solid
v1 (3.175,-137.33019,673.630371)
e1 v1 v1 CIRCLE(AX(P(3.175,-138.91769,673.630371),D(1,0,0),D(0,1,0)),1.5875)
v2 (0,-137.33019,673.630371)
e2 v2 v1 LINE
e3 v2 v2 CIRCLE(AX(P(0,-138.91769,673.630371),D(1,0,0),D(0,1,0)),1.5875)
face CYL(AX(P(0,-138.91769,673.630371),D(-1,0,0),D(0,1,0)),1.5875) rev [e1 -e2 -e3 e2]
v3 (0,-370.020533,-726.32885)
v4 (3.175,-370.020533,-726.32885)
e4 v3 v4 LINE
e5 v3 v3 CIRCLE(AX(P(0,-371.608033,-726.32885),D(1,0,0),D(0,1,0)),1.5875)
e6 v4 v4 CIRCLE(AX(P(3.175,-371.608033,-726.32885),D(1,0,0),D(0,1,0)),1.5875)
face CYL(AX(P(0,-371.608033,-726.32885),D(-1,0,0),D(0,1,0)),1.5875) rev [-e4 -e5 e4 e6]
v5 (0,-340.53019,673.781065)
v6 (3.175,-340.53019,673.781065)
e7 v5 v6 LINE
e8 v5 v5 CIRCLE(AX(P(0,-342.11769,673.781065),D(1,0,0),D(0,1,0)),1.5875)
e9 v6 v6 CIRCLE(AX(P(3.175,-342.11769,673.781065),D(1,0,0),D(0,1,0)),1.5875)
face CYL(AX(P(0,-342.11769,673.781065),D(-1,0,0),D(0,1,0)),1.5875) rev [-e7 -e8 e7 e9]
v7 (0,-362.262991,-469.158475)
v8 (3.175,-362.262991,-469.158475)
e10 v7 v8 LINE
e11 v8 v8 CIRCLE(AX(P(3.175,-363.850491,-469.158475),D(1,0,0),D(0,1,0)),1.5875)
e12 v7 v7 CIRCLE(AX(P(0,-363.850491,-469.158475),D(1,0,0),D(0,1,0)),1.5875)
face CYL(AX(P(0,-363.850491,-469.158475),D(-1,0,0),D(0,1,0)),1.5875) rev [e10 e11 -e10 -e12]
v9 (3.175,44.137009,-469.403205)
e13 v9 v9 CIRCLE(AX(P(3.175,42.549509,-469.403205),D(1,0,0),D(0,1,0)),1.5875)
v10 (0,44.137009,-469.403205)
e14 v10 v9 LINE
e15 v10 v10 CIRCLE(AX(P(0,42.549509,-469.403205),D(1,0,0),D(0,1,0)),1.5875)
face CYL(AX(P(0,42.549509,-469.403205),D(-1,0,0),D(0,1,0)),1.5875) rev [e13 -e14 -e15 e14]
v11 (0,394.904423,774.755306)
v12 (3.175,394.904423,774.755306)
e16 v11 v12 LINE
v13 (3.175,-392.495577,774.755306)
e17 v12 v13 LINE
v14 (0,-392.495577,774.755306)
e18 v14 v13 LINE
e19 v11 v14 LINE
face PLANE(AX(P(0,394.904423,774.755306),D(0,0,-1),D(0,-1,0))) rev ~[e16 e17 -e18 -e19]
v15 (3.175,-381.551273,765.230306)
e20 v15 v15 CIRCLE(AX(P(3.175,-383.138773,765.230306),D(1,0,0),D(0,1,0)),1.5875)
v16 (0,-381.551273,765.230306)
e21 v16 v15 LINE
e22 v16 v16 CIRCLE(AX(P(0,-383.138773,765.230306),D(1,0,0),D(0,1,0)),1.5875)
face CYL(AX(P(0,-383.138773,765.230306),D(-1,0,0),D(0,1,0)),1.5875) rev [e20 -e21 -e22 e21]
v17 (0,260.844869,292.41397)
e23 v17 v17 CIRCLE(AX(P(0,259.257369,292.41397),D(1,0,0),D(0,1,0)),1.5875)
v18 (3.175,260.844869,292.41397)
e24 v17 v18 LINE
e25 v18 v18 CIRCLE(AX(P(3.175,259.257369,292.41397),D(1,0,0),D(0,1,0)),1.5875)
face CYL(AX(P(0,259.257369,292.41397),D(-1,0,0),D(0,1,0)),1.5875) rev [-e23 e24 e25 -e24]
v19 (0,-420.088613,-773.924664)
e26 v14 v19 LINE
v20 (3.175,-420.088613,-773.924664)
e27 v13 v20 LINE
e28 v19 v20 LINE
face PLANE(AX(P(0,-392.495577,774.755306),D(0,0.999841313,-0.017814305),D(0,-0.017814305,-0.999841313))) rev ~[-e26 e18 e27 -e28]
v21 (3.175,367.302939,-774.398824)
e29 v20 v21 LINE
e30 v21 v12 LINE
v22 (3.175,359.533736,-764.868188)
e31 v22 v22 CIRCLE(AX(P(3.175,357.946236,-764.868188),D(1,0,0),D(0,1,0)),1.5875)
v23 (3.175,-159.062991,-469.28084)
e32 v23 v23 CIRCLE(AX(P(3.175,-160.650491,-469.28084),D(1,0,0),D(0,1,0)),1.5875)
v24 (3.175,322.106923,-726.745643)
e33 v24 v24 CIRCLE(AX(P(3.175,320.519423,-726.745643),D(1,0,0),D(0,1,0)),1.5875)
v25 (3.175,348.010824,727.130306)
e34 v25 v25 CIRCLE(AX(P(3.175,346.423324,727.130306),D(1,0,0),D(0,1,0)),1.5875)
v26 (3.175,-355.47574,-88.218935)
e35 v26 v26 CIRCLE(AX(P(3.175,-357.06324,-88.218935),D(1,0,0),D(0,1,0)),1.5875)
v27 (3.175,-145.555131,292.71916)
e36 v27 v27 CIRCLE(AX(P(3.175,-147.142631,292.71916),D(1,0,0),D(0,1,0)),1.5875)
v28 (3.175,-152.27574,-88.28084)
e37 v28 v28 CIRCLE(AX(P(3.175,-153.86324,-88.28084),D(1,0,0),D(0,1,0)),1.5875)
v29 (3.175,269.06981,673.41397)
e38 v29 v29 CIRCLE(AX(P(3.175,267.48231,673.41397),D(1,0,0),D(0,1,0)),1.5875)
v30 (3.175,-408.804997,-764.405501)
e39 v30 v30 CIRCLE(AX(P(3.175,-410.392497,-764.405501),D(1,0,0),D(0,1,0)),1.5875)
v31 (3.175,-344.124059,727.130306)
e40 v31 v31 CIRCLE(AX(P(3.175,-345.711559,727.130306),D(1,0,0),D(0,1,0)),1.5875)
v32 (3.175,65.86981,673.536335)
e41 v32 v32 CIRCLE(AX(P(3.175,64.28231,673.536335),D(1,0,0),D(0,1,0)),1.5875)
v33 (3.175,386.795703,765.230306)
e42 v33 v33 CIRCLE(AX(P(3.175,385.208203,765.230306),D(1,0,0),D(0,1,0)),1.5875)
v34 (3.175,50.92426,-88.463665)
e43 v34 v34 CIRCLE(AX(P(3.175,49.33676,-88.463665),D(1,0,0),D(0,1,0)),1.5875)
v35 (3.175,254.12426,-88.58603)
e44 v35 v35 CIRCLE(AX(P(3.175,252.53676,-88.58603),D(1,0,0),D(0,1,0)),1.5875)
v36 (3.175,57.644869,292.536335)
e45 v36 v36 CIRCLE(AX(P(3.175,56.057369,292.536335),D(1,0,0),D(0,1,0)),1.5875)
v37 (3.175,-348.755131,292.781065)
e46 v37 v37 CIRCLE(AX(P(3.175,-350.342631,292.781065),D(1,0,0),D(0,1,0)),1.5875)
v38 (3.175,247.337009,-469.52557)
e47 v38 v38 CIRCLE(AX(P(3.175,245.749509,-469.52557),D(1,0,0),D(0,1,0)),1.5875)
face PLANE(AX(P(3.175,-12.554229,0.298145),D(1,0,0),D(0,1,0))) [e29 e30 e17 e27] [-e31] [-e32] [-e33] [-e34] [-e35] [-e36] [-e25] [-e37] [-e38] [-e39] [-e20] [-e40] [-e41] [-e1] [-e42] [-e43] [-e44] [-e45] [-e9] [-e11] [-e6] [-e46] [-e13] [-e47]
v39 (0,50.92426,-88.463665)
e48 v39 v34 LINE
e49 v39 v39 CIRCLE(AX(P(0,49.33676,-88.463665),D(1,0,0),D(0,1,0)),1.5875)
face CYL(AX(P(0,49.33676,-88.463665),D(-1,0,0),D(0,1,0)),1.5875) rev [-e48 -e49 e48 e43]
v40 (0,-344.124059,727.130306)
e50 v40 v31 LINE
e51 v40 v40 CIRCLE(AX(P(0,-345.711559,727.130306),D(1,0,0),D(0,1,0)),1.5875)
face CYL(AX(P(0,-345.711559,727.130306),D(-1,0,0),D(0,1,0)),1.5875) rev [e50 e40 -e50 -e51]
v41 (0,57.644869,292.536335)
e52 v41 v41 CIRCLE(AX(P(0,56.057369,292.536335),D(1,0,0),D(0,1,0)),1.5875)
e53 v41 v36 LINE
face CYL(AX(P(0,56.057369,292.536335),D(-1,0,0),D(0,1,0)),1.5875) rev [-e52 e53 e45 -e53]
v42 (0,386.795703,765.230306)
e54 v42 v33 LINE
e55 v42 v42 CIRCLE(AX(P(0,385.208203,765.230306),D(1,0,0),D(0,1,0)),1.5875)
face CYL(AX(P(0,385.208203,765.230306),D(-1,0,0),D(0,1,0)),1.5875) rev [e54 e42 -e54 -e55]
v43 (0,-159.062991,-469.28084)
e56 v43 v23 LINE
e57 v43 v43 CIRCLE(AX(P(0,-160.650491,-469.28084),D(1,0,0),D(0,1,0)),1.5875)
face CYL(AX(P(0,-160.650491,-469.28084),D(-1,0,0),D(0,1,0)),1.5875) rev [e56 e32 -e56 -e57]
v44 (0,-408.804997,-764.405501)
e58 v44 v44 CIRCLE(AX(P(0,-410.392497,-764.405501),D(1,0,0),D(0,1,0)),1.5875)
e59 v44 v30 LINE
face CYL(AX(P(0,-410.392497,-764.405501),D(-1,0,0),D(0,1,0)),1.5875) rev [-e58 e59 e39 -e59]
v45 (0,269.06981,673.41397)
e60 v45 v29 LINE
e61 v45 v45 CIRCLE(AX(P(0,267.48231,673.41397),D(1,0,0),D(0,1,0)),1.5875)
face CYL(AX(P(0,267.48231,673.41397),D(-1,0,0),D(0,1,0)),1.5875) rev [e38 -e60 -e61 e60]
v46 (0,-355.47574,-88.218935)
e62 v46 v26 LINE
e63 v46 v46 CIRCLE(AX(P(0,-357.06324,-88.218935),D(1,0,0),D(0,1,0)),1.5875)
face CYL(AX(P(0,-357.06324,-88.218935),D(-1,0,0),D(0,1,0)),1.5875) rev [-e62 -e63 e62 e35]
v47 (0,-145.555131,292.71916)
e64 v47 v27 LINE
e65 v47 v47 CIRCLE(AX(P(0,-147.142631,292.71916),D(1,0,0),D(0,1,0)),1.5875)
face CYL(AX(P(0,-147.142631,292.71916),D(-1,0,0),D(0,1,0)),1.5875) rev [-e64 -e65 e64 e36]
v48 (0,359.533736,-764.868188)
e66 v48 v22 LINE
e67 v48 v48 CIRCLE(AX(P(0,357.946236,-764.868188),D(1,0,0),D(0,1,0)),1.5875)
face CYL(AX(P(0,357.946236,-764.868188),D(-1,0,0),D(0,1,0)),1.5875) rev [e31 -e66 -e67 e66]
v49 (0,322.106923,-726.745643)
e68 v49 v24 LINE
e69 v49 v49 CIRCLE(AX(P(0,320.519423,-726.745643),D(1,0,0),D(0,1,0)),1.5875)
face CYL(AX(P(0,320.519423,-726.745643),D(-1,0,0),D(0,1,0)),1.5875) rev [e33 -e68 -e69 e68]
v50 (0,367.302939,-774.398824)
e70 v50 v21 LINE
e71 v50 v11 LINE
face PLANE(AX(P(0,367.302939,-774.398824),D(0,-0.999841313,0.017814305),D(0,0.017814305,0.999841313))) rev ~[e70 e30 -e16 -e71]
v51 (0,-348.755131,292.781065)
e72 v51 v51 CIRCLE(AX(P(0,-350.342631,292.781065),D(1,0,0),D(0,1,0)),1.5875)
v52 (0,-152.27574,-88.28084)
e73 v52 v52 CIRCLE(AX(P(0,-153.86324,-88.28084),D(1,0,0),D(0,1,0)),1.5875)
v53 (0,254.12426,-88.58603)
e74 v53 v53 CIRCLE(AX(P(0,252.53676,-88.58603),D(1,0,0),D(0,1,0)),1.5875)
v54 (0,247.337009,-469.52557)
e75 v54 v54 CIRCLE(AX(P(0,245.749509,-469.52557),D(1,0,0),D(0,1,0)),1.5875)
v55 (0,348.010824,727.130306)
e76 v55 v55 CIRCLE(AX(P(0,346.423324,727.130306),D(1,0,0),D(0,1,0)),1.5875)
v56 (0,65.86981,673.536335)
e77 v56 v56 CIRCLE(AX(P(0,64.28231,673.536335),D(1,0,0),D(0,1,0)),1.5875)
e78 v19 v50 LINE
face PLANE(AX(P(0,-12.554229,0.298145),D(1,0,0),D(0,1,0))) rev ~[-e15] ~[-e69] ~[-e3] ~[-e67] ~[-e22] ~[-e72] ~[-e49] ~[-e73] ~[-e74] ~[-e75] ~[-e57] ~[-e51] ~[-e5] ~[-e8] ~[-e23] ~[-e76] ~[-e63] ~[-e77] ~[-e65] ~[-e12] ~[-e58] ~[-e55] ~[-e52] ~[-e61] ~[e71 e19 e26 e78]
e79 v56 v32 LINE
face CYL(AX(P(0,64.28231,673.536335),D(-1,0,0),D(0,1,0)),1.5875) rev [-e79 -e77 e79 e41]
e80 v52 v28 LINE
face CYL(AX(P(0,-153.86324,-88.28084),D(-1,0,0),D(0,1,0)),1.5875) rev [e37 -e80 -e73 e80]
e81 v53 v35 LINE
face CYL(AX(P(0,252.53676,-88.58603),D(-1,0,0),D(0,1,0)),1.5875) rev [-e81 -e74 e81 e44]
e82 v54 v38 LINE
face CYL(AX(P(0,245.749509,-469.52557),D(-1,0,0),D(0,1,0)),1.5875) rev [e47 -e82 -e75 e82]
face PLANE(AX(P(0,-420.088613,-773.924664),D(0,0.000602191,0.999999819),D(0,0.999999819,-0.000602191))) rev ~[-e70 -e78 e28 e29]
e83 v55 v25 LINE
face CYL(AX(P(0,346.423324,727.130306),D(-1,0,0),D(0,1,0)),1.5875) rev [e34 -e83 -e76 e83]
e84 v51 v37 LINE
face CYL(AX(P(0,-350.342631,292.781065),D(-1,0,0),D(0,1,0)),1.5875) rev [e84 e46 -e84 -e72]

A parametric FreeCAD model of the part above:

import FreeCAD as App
import Part
import Sketcher

V = App.Vector
Q = App.Units.Quantity

doc = App.newDocument("Part")
body = doc.addObject("PartDesign::Body", "Body")

sketch1 = doc.addObject("Sketcher::SketchObject", "Sketch")
body.addObject(sketch1)
sketch1.AttachmentSupport = (doc.YZ_Plane, [""])
sketch1.MapMode = "FlatFace"
sketch1.addGeometry([
    Part.LineSegment(V(394.9, 774.8, 0), V(-392.5, 774.8, 0)),
    Part.LineSegment(V(-392.5, 774.8, 0), V(-420.1, -773.9, 0)),
    Part.LineSegment(V(-420.1, -773.9, 0), V(367.3, -774.4, 0)),
    Part.LineSegment(V(367.3, -774.4, 0), V(394.9, 774.8, 0)),
    Part.Circle(V(-410.4, -764.4, 0), V(0, 0, 1), 1.6),
    Part.Circle(V(-371.6, -726.3, 0), V(0, 0, 1), 1.6),
    Part.Circle(V(-363.9, -469.2, 0), V(0, 0, 1), 1.6),
    Part.Circle(V(-160.7, -469.3, 0), V(0, 0, 1), 1.6),
    Part.Circle(V(-357.1, -88.2, 0), V(0, 0, 1), 1.6),
    Part.Circle(V(-153.9, -88.3, 0), V(0, 0, 1), 1.6),
    Part.Circle(V(42.5, -469.4, 0), V(0, 0, 1), 1.6),
    Part.Circle(V(320.5, -726.7, 0), V(0, 0, 1), 1.6),
    Part.Circle(V(357.9, -764.9, 0), V(0, 0, 1), 1.6),
    Part.Circle(V(245.7, -469.5, 0), V(0, 0, 1), 1.6),
    Part.Circle(V(49.3, -88.5, 0), V(0, 0, 1), 1.6),
    Part.Circle(V(252.5, -88.6, 0), V(0, 0, 1), 1.6),
    Part.Circle(V(-350.3, 292.8, 0), V(0, 0, 1), 1.6),
    Part.Circle(V(-147.1, 292.7, 0), V(0, 0, 1), 1.6),
    Part.Circle(V(-383.1, 765.2, 0), V(0, 0, 1), 1.6),
    Part.Circle(V(-342.1, 673.8, 0), V(0, 0, 1), 1.6),
    Part.Circle(V(-345.7, 727.1, 0), V(0, 0, 1), 1.6),
    Part.Circle(V(-138.9, 673.6, 0), V(0, 0, 1), 1.6),
    Part.Circle(V(56.1, 292.5, 0), V(0, 0, 1), 1.6),
    Part.Circle(V(259.3, 292.4, 0), V(0, 0, 1), 1.6),
    Part.Circle(V(64.3, 673.5, 0), V(0, 0, 1), 1.6),
    Part.Circle(V(267.5, 673.4, 0), V(0, 0, 1), 1.6),
    Part.Circle(V(346.4, 727.1, 0), V(0, 0, 1), 1.6),
    Part.Circle(V(385.2, 765.2, 0), V(0, 0, 1), 1.6),
], False)
sketch1.addConstraint([
    Sketcher.Constraint("Coincident", 0, 2, 1, 1),
    Sketcher.Constraint("Coincident", 1, 2, 2, 1),
    Sketcher.Constraint("Coincident", 2, 2, 3, 1),
    Sketcher.Constraint("Coincident", 3, 2, 0, 1),
    Sketcher.Constraint("Horizontal", 0),
    Sketcher.Constraint("Equal", 4, 5),
    Sketcher.Constraint("Equal", 5, 6),
    Sketcher.Constraint("Equal", 6, 7),
    Sketcher.Constraint("Equal", 7, 8),
    Sketcher.Constraint("Equal", 8, 9),
    Sketcher.Constraint("Equal", 9, 10),
    Sketcher.Constraint("Equal", 10, 11),
    Sketcher.Constraint("Equal", 11, 12),
    Sketcher.Constraint("Equal", 12, 13),
    Sketcher.Constraint("Equal", 13, 14),
    Sketcher.Constraint("Equal", 14, 15),
    Sketcher.Constraint("Equal", 15, 16),
    Sketcher.Constraint("Equal", 16, 17),
    Sketcher.Constraint("Equal", 17, 18),
    Sketcher.Constraint("Equal", 18, 19),
    Sketcher.Constraint("Equal", 19, 20),
    Sketcher.Constraint("Equal", 20, 21),
    Sketcher.Constraint("Equal", 21, 22),
    Sketcher.Constraint("Equal", 22, 23),
    Sketcher.Constraint("Equal", 23, 24),
    Sketcher.Constraint("Equal", 24, 25),
    Sketcher.Constraint("Equal", 25, 26),
    Sketcher.Constraint("Equal", 26, 27),
    Sketcher.Constraint("Parallel", 1, 3),
    Sketcher.Constraint("Horizontal", 20, 3, 26, 3),
    Sketcher.Constraint("Horizontal", 18, 3, 27, 3),
    Sketcher.Constraint("DistanceX", 0, 2, 0, 1, Q("31 in")),
    Sketcher.Constraint("Distance", 3, Q("61 in")),
    Sketcher.Constraint("Diameter", 4, Q("0.125 in")),
    Sketcher.Constraint("DistanceX", 6, 3, 7, 3, Q("8 in")),
    Sketcher.Constraint("DistanceX", 8, 3, 9, 3, Q("8 in")),
    Sketcher.Constraint("DistanceY", 7, 3, 9, 3, Q("15 in")),
    Sketcher.Constraint("DistanceX", 7, 3, 10, 3, Q("8 in")),
    Sketcher.Constraint("DistanceX", 10, 3, 13, 3, Q("8 in")),
    Sketcher.Constraint("DistanceX", 9, 3, 14, 3, Q("8 in")),
    Sketcher.Constraint("DistanceX", 14, 3, 15, 3, Q("8 in")),
    Sketcher.Constraint("DistanceY", 8, 3, 16, 3, Q("15 in")),
    Sketcher.Constraint("DistanceX", 16, 3, 17, 3, Q("8 in")),
    Sketcher.Constraint("DistanceY", 9, 3, 17, 3, Q("15 in")),
    Sketcher.Constraint("DistanceY", 16, 3, 19, 3, Q("15 in")),
    Sketcher.Constraint("DistanceX", 19, 3, 21, 3, Q("8 in")),
    Sketcher.Constraint("DistanceX", 17, 3, 22, 3, Q("8 in")),
    Sketcher.Constraint("DistanceY", 14, 3, 22, 3, Q("15 in")),
    Sketcher.Constraint("DistanceX", 22, 3, 23, 3, Q("8 in")),
    Sketcher.Constraint("DistanceY", 15, 3, 23, 3, Q("15 in")),
    Sketcher.Constraint("DistanceX", 21, 3, 24, 3, Q("8 in")),
    Sketcher.Constraint("DistanceY", 22, 3, 24, 3, Q("15 in")),
    Sketcher.Constraint("DistanceX", 24, 3, 25, 3, Q("8 in")),
    Sketcher.Constraint("DistanceY", 23, 3, 25, 3, Q("15 in")),
    Sketcher.Constraint("DistanceY", 20, 3, 18, 3, Q("1.5 in")),
    Sketcher.Constraint("DistanceY", 18, 3, 0, 2, Q("0.375 in")),
    Sketcher.Constraint("DistanceY", 4, 3, -1, 1, Q("764.405501 mm")),
    Sketcher.Constraint("DistanceY", 23, 3, 21, 3, Q("381.216401 mm")),
    Sketcher.Constraint("DistanceX", 26, 3, 3, 2, Q("48.481099 mm")),
    Sketcher.Constraint("DistanceY", 5, 3, -1, 1, Q("726.32885 mm")),
    Sketcher.Constraint("DistanceX", 6, 3, -1, 1, Q("363.850491 mm")),
    Sketcher.Constraint("DistanceY", 7, 3, -1, 1, Q("469.28084 mm")),
    Sketcher.Constraint("DistanceX", 8, 3, -1, 1, Q("357.06324 mm")),
    Sketcher.Constraint("DistanceY", 12, 3, -1, 1, Q("764.868188 mm")),
    Sketcher.Constraint("DistanceY", 13, 3, -1, 1, Q("469.52557 mm")),
    Sketcher.Constraint("DistanceY", 15, 3, -1, 1, Q("88.58603 mm")),
    Sketcher.Constraint("DistanceX", 16, 3, -1, 1, Q("350.342631 mm")),
    Sketcher.Constraint("DistanceX", 19, 3, -1, 1, Q("342.11769 mm")),
    Sketcher.Constraint("DistanceX", 20, 3, -1, 1, Q("345.711559 mm")),
    Sketcher.Constraint("DistanceX", -1, 1, 2, 2, Q("367.302939 mm")),
    Sketcher.Constraint("DistanceX", 5, 3, 7, 3, Q("210.957542 mm")),
    Sketcher.Constraint("DistanceY", 6, 3, 8, 3, Q("380.93954 mm")),
    Sketcher.Constraint("DistanceY", 10, 3, 6, 3, Q("0.24473 mm")),
    Sketcher.Constraint("DistanceX", 4, 3, 11, 3, Q("730.91192 mm")),
    Sketcher.Constraint("DistanceX", 5, 3, 12, 3, Q("729.554269 mm")),
    Sketcher.Constraint("DistanceY", 10, 3, 14, 3, Q("380.93954 mm")),
    Sketcher.Constraint("DistanceY", 16, 3, 18, 3, Q("472.449241 mm")),
    Sketcher.Constraint("DistanceX", 26, 3, 27, 3, Q("38.784879 mm")),
    Sketcher.Constraint("DistanceX", 0, 2, 20, 3, Q("46.784018 mm")),
    Sketcher.Constraint("DistanceX", 1, 2, 5, 3, Q("48.48058 mm")),
    Sketcher.Constraint("DistanceY", 2, 2, 11, 3, Q("47.653181 mm")),
    Sketcher.Constraint("DistanceX", 4, 3, -1, 1, Q("410.392497 mm")),
    Sketcher.Constraint("DistanceY", 6, 3, -1, 1, Q("469.158475 mm")),
    Sketcher.Constraint("DistanceX", 18, 3, -1, 1, Q("383.138773 mm")),
])
pad1 = doc.addObject("PartDesign::Pad", "Pad")
body.addObject(pad1)
pad1.Profile = sketch1
pad1.Length = Q("0.125 in")

doc.recompute()
